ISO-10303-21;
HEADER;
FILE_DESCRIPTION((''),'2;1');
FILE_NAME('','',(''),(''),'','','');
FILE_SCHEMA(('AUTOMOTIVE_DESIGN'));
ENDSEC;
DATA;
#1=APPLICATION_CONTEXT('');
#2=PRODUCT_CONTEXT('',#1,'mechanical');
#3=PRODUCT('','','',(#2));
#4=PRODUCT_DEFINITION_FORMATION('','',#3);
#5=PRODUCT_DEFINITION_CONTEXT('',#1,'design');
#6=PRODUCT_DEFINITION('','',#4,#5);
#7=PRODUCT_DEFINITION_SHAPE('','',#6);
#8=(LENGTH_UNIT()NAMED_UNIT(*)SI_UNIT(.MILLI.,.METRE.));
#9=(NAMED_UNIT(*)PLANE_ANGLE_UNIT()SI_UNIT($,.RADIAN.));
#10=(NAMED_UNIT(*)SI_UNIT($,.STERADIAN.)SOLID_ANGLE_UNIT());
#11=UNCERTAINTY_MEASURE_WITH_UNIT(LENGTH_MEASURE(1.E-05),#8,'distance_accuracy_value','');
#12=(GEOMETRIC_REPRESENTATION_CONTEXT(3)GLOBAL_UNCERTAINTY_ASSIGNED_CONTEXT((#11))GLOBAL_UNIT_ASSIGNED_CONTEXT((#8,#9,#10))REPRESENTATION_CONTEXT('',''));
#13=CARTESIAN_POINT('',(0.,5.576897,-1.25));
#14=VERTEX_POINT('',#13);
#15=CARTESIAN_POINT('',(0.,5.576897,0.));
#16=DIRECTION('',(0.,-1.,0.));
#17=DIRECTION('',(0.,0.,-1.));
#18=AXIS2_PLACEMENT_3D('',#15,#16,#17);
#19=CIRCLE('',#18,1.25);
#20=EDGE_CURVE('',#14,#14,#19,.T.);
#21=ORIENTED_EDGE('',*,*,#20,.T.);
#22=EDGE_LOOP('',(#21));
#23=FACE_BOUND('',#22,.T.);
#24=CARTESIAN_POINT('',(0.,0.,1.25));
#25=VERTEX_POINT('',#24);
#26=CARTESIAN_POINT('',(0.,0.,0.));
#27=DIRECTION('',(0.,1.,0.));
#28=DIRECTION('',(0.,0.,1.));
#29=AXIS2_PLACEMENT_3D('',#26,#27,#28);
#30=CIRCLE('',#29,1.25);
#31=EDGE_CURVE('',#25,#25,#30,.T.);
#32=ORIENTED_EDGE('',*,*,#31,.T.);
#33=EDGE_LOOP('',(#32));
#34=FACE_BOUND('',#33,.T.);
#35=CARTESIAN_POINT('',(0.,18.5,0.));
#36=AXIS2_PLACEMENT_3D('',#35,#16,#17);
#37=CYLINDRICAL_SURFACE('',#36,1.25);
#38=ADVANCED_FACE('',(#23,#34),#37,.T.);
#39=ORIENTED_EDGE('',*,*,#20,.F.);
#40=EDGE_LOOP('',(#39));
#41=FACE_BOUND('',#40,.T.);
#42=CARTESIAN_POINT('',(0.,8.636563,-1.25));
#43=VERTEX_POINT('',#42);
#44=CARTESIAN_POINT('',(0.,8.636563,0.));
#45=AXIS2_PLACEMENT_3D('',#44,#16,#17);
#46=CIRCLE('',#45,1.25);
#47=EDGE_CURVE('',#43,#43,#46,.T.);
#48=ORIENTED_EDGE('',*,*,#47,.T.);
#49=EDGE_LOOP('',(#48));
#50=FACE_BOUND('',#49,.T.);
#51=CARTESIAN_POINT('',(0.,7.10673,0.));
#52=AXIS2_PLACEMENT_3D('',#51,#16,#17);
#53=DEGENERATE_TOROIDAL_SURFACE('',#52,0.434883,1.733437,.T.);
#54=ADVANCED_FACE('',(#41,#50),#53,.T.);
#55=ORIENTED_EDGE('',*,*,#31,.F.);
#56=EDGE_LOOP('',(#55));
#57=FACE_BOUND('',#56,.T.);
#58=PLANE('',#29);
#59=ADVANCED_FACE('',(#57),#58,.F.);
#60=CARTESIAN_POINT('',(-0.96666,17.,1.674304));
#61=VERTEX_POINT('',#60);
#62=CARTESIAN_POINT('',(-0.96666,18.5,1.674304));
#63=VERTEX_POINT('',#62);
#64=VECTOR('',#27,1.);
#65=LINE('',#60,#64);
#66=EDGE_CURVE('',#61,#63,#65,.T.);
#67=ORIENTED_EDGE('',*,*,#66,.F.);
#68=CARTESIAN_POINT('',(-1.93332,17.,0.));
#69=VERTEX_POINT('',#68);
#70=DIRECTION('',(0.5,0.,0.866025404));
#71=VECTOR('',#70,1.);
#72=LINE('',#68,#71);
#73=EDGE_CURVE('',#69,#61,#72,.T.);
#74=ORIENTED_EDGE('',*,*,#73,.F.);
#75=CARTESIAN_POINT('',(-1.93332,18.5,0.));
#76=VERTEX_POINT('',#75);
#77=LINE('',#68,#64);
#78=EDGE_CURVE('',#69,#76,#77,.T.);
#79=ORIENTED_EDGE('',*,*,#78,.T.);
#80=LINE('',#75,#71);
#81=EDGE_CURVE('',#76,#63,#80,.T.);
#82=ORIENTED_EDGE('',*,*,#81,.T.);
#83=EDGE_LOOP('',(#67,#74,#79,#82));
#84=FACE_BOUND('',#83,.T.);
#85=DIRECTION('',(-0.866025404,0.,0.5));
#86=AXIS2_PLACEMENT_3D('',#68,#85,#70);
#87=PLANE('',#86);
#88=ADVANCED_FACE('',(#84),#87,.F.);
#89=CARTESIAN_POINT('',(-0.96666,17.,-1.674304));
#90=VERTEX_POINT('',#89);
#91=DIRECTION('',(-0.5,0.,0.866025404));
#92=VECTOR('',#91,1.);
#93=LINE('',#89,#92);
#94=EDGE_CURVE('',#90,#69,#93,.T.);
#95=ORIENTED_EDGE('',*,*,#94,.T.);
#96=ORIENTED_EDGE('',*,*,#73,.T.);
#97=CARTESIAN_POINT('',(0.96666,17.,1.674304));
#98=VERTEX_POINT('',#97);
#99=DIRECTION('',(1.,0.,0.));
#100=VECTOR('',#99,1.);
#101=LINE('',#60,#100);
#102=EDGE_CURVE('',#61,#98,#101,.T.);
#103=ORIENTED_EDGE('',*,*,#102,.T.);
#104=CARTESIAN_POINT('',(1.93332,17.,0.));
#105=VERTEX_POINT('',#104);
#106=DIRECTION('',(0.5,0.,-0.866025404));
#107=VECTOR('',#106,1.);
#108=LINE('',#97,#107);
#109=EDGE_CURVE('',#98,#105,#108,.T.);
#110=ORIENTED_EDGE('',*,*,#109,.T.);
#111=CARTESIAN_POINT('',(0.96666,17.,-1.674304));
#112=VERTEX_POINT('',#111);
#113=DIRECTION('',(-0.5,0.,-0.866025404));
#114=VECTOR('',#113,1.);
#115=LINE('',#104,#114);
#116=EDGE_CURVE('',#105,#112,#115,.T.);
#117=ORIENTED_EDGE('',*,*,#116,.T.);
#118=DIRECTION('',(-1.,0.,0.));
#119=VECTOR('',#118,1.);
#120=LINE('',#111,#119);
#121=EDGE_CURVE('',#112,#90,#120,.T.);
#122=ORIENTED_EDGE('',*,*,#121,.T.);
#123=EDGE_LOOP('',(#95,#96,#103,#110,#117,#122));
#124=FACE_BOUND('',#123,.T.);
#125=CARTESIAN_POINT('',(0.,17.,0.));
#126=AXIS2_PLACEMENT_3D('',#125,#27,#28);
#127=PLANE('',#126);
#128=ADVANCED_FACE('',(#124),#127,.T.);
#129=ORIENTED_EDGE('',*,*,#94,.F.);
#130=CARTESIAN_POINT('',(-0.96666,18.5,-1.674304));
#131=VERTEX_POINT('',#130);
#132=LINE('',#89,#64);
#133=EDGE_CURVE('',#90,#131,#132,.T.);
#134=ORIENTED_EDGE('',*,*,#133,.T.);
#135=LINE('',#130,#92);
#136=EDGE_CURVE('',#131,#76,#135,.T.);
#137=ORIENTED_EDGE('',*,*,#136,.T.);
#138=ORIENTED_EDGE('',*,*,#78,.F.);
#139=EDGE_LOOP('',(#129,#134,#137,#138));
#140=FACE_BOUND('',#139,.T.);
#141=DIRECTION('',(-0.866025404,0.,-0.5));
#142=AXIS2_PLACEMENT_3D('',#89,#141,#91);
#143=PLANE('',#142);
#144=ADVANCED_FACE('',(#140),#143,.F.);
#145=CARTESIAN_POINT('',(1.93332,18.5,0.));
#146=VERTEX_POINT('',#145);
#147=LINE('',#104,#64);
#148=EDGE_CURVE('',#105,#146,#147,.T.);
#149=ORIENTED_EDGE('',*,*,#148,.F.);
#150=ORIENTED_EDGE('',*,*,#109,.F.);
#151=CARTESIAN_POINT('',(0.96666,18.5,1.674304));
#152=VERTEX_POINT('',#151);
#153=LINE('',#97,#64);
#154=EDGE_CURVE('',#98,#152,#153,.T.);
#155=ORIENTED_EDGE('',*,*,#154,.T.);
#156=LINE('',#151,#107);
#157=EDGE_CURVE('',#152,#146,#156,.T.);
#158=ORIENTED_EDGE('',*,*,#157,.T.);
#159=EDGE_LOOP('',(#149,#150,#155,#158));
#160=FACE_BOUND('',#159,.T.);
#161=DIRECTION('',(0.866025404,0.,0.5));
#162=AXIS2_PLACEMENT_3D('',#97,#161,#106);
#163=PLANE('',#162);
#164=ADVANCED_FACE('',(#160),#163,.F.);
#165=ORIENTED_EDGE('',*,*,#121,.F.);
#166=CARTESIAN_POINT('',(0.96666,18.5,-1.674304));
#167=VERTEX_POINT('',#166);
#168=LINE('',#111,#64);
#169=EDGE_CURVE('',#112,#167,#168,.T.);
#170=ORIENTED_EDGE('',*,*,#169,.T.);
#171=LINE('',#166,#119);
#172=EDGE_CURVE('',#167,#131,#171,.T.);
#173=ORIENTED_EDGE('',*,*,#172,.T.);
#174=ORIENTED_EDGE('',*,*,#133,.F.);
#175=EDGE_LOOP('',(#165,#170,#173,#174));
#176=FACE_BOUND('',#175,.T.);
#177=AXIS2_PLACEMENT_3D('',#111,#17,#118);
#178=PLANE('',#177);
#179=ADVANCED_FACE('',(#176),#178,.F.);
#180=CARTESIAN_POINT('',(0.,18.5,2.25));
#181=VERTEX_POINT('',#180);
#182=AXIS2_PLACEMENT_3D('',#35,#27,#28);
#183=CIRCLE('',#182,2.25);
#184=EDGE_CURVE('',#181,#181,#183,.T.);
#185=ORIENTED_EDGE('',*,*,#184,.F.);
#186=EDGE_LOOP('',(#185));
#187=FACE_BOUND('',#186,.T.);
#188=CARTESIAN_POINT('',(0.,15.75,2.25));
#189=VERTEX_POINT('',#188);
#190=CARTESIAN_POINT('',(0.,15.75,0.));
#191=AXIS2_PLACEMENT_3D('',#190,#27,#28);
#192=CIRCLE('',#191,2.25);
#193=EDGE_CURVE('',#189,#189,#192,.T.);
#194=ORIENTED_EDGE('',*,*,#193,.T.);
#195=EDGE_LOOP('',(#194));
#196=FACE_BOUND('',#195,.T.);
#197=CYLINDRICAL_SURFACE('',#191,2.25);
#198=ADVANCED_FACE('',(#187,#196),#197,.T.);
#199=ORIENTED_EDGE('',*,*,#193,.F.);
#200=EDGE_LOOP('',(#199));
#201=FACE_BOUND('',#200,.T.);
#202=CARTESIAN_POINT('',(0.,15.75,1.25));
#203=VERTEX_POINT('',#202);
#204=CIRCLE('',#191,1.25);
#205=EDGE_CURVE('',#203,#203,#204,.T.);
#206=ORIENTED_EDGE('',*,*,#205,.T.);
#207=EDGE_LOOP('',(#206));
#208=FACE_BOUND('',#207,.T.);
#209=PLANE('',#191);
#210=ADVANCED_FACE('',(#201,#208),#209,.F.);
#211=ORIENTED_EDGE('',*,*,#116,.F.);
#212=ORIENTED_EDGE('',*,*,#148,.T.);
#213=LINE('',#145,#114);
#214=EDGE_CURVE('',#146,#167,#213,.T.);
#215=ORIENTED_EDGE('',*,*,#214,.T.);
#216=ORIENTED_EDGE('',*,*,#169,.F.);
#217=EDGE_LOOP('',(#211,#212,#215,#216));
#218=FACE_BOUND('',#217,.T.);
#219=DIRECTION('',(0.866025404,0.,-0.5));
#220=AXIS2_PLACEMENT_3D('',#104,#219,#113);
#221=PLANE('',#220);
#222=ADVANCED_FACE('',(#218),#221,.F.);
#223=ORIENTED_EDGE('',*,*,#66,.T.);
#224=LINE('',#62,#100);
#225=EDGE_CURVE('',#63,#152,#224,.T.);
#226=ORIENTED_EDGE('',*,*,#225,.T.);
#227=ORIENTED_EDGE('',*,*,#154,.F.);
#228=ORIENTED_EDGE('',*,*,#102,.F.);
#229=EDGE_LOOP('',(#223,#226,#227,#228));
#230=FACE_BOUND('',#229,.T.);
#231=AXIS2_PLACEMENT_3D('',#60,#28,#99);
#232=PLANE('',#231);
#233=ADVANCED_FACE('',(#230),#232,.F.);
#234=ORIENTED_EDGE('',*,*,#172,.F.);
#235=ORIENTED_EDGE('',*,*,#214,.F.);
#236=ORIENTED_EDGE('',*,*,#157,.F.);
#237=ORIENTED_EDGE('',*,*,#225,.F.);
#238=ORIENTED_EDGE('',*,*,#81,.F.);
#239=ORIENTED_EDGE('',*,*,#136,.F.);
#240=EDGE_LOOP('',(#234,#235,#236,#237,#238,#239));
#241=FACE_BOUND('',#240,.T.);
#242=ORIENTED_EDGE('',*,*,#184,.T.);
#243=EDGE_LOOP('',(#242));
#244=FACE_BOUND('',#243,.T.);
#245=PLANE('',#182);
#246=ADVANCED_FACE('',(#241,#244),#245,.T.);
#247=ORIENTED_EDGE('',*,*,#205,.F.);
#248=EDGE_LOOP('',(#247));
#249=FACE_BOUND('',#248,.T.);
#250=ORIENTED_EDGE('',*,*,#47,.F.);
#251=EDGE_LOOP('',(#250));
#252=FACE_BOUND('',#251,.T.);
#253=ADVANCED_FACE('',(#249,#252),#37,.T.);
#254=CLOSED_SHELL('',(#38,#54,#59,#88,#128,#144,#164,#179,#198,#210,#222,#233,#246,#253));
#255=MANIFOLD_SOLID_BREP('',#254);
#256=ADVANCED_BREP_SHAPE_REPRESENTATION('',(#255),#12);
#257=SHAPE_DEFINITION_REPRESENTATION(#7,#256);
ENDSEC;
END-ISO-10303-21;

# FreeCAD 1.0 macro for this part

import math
import FreeCAD as App
import Part
import Sketcher
from FreeCAD import Vector
Q = App.Units.Quantity


def add_polygon(sketch, points):
    """Adds a closed chain of lines whose ends are joined by coincident constraints."""
    first, n = sketch.GeometryCount, len(points)
    for a, b in zip(points, points[1:] + points[:1]):
        sketch.addGeometry(Part.LineSegment(App.Vector(*a, 0), App.Vector(*b, 0)), False)
    for i in range(n):
        sketch.addConstraint(Sketcher.Constraint("Coincident", first + i, 2, first + (i + 1) % n, 1))

doc = App.newDocument("Part")
body = doc.addObject("PartDesign::Body", "Body")

# Sketch on XZ plane
sketch1 = body.newObject("Sketcher::SketchObject", "Sketch")
sketch1.AttachmentSupport = (doc.getObject("XZ_Plane"), [""])
sketch1.MapMode = "FlatFace"
sketch1.addGeometry(Part.Circle(Vector(0, 0, 0), Vector(0, 0, 1), 1.2), False)
sketch1.addConstraint([
    Sketcher.Constraint("Coincident", 0, 3, -1, 1),
    Sketcher.Constraint("Diameter", 0, Q("2.5 mm")),
])
pad1 = body.newObject("PartDesign::Pad", "Pad")
pad1.Profile = sketch1
pad1.Length = 18.5
pad1.Reversed = True

# Sketch on XZ plane
sketch2 = body.newObject("Sketcher::SketchObject", "Sketch001")
sketch2.AttachmentSupport = (doc.getObject("XZ_Plane"), [""])
sketch2.MapMode = "FlatFace"
sketch2.AttachmentOffset = App.Placement(Vector(0, 0, -18.5), App.Rotation())
sketch2.addGeometry(Part.Circle(Vector(0, 0, 0), Vector(0, 0, 1), 2.2), False)
sketch2.addConstraint([
    Sketcher.Constraint("Coincident", 0, 3, -1, 1),
    Sketcher.Constraint("Diameter", 0, Q("4.5 mm")),
])
pad2 = body.newObject("PartDesign::Pad", "Pad001")
pad2.Profile = sketch2
pad2.Length = 2.75

# Sketch on XY plane
sketch3 = body.newObject("Sketcher::SketchObject", "Sketch002")
sketch3.AttachmentSupport = (doc.getObject("XY_Plane"), [""])
sketch3.MapMode = "FlatFace"
sketch3.addGeometry([
    Part.LineSegment(Vector(1.2, 8.6, 0), Vector(1.2, 5.6, 0)),
    Part.ArcOfCircle(Part.Circle(Vector(0.4, 7.1, 0), Vector(0, 0, 1), 1.7), math.radians(-62), math.radians(62)),
], False)
sketch3.addConstraint([
    Sketcher.Constraint("Coincident", 0, 1, 1, 2),
    Sketcher.Constraint("Coincident", 1, 1, 0, 2),
    Sketcher.Constraint("Vertical", 0),
    Sketcher.Constraint("DistanceX", -1, 1, 0, 1, Q("1.25 mm")),
    Sketcher.Constraint("Radius", 1, Q("1.733437 mm")),
    Sketcher.Constraint("DistanceY", 0, 2, 0, 1, Q("3.059665 mm")),
    Sketcher.Constraint("DistanceY", -1, 1, 1, 3, Q("7.10673 mm")),
])
revolution = body.newObject("PartDesign::Revolution", "Revolution")
revolution.Profile = sketch3
revolution.ReferenceAxis = (sketch3, ["V_Axis"])
revolution.Angle = 360

# Sketch on XZ plane
sketch4 = body.newObject("Sketcher::SketchObject", "Sketch003")
sketch4.AttachmentSupport = (doc.getObject("XZ_Plane"), [""])
sketch4.MapMode = "FlatFace"
sketch4.AttachmentOffset = App.Placement(Vector(0, 0, -18.5), App.Rotation())
add_polygon(sketch4, [(1, -1.7), (-1, -1.7), (-1.9, 0), (-1, 1.7), (1, 1.7), (1.9, 0)])  # lines 0-5
sketch4.addConstraint([
    Sketcher.Constraint("Horizontal", 0),
    Sketcher.Constraint("Horizontal", 3),
    Sketcher.Constraint("Symmetric", 0, 2, 3, 2, -1, 1),
    Sketcher.Constraint("Symmetric", 1, 2, 4, 2, -1, 1),
    Sketcher.Constraint("PointOnObject", 1, 2, -1),
    Sketcher.Constraint("Parallel", 2, 5),
    Sketcher.Constraint("Vertical", 0, 2, 2, 2),
    Sketcher.Constraint("Angle", 1, Q("120 deg")),
    Sketcher.Constraint("DistanceX", 0, 2, 0, 1, Q("1.93332 mm")),
    Sketcher.Constraint("Distance", 1, Q("1.93332 mm")),
])
pocket1 = body.newObject("PartDesign::Pocket", "Pocket")
pocket1.Profile = sketch4
pocket1.Length = 1.5
pocket1.Reversed = True

doc.recompute()
